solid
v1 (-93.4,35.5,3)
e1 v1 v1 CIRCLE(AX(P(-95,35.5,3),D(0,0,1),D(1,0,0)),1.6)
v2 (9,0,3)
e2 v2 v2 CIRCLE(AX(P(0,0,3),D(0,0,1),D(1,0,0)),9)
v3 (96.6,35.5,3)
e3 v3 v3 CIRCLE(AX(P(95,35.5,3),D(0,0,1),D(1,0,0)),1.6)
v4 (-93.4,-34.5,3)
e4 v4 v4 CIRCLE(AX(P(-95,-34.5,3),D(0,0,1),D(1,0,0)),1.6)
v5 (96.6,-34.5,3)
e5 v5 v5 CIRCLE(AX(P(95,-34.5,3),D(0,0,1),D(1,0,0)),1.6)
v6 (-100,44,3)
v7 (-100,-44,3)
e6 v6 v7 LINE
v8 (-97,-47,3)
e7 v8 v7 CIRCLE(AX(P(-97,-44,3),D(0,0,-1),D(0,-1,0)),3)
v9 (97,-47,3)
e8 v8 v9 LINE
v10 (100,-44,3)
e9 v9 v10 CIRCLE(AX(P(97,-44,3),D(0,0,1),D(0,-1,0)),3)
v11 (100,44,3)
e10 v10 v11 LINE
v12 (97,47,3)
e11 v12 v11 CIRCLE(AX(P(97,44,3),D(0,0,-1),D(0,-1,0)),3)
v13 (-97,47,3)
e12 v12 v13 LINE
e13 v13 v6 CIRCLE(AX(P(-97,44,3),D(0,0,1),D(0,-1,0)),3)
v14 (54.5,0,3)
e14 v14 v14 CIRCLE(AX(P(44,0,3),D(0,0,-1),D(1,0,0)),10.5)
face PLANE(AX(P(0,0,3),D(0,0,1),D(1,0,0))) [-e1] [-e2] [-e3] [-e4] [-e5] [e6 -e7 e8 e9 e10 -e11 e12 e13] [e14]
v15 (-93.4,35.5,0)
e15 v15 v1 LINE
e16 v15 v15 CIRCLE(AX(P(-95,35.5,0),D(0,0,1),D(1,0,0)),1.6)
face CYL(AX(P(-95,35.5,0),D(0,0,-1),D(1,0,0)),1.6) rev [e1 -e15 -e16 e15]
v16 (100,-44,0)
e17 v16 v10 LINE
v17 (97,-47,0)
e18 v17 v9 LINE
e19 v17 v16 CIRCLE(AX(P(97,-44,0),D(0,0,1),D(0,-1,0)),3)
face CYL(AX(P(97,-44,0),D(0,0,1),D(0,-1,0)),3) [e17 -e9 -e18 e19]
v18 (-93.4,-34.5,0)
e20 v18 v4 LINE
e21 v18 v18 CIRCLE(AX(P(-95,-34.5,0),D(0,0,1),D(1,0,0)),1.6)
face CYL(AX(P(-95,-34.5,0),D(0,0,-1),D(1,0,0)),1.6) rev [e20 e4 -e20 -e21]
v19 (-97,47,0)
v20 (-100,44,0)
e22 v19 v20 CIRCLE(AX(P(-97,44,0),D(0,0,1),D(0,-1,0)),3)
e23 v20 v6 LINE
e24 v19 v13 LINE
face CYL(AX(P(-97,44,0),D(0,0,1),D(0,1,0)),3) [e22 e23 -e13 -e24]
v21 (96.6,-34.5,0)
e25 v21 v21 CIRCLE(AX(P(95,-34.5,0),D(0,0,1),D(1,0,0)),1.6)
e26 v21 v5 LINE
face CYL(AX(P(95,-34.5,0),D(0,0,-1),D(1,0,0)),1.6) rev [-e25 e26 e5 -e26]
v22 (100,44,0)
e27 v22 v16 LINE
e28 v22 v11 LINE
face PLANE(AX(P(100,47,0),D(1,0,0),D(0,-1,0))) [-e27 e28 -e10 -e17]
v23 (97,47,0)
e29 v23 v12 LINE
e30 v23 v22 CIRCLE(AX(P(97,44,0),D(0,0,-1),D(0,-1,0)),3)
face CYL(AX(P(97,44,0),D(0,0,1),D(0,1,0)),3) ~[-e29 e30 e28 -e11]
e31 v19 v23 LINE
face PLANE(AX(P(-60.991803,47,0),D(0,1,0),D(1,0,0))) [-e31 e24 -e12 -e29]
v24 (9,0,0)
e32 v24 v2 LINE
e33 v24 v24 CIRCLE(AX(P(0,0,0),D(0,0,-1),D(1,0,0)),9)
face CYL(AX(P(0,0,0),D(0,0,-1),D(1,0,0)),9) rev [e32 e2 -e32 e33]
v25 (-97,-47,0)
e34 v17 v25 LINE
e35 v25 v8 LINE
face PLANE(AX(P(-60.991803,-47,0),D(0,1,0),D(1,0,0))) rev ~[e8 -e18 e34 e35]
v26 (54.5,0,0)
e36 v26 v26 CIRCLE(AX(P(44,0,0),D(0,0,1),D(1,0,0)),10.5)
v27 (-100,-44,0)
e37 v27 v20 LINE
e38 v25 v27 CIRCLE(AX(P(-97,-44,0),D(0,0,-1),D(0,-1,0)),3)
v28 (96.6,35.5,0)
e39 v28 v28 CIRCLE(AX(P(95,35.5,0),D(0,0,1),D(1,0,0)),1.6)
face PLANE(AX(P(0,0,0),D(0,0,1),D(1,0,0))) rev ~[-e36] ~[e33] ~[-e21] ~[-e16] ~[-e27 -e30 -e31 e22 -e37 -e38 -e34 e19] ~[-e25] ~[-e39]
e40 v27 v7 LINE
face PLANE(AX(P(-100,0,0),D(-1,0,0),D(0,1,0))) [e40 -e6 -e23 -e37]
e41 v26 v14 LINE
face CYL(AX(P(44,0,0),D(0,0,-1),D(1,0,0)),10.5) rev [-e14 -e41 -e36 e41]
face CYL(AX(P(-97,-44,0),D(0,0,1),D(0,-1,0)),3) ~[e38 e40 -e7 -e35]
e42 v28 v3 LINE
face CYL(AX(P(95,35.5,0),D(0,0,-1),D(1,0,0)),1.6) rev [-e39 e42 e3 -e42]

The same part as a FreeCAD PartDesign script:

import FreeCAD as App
import Part
import Sketcher


def edges_at(feature, points):
    """Names of the edges that pass closest to the given points."""
    edges = feature.Shape.Edges
    near = lambda p: min(range(len(edges)), key=lambda i: edges[i].distToShape(Part.Vertex(*p))[0])
    return sorted({f"Edge{near(p) + 1}" for p in points})

doc = App.newDocument("Part")
body = doc.addObject("PartDesign::Body", "Body")

# Sketch on XY plane
sketch1 = body.newObject("Sketcher::SketchObject", "Sketch")
sketch1.AttachmentSupport = (doc.getObject("XY_Plane"), [""])
sketch1.MapMode = "FlatFace"
sketch1.addGeometry(Part.LineSegment(App.Vector(-100, 47, 0), App.Vector(-100, -47, 0)), False)
sketch1.addGeometry(Part.LineSegment(App.Vector(-100, -47, 0), App.Vector(100, -47, 0)), False)
sketch1.addGeometry(Part.LineSegment(App.Vector(100, -47, 0), App.Vector(100, 47, 0)), False)
sketch1.addGeometry(Part.LineSegment(App.Vector(100, 47, 0), App.Vector(-100, 47, 0)), False)
sketch1.addGeometry(Part.Circle(App.Vector(0, 0, 0), App.Vector(0, 0, 1), 9), False)
sketch1.addGeometry(Part.Circle(App.Vector(44, 0, 0), App.Vector(0, 0, 1), 10.5), False)
sketch1.addGeometry(Part.Circle(App.Vector(-95, 35.5, 0), App.Vector(0, 0, 1), 1.6), False)
sketch1.addGeometry(Part.Circle(App.Vector(95, 35.5, 0), App.Vector(0, 0, 1), 1.6), False)
sketch1.addGeometry(Part.Circle(App.Vector(95, -34.5, 0), App.Vector(0, 0, 1), 1.6), False)
sketch1.addGeometry(Part.Circle(App.Vector(-95, -34.5, 0), App.Vector(0, 0, 1), 1.6), False)
sketch1.addConstraint(Sketcher.Constraint("Coincident", 0, 2, 1, 1))
sketch1.addConstraint(Sketcher.Constraint("Coincident", 1, 2, 2, 1))
sketch1.addConstraint(Sketcher.Constraint("Coincident", 2, 2, 3, 1))
sketch1.addConstraint(Sketcher.Constraint("Coincident", 3, 2, 0, 1))
sketch1.addConstraint(Sketcher.Constraint("Vertical", 0))
sketch1.addConstraint(Sketcher.Constraint("Horizontal", 1))
sketch1.addConstraint(Sketcher.Constraint("Vertical", 2))
sketch1.addConstraint(Sketcher.Constraint("Horizontal", 3))
sketch1.addConstraint(Sketcher.Constraint("Coincident", 4, 3, -1, 1))
sketch1.addConstraint(Sketcher.Constraint("Equal", 6, 7))
sketch1.addConstraint(Sketcher.Constraint("Equal", 7, 8))
sketch1.addConstraint(Sketcher.Constraint("Equal", 8, 9))
sketch1.addConstraint(Sketcher.Constraint("Symmetric", 0, 2, 2, 2, -1, 1))
sketch1.addConstraint(Sketcher.Constraint("Symmetric", 6, 3, 7, 3, -2))
sketch1.addConstraint(Sketcher.Constraint("Symmetric", 8, 3, 9, 3, -2))
sketch1.addConstraint(Sketcher.Constraint("PointOnObject", 5, 3, -1))
sketch1.addConstraint(Sketcher.Constraint("Vertical", 7, 3, 8, 3))
sketch1.addConstraint(Sketcher.Constraint("Diameter", 4, 18.0))
sketch1.addConstraint(Sketcher.Constraint("Diameter", 5, 21.0))
sketch1.addConstraint(Sketcher.Constraint("Diameter", 6, 3.2))
sketch1.addConstraint(Sketcher.Constraint("DistanceX", 1, 1, 1, 2, 200.0))
sketch1.addConstraint(Sketcher.Constraint("DistanceX", -1, 1, 5, 3, 44.0))
sketch1.addConstraint(Sketcher.Constraint("DistanceY", 8, 3, 7, 3, 70.0))
sketch1.addConstraint(Sketcher.Constraint("DistanceX", 0, 2, 9, 3, 5.0))
sketch1.addConstraint(Sketcher.Constraint("DistanceY", 7, 3, 2, 2, 11.5))
sketch1.addConstraint(Sketcher.Constraint("DistanceY", 0, 2, 0, 1, 94.0))
pad1 = body.newObject("PartDesign::Pad", "Pad")
pad1.Profile = sketch1
pad1.Length = 3
doc.recompute()

fillet = body.newObject("PartDesign::Fillet", "Fillet")
fillet.Base = (pad1, edges_at(pad1, [
    (100, 47, 1.5),
    (100, -47, 1.5),
    (-100, -47, 1.5),
    (-100, 47, 1.5),
]))
fillet.Radius = 3

doc.recompute()
